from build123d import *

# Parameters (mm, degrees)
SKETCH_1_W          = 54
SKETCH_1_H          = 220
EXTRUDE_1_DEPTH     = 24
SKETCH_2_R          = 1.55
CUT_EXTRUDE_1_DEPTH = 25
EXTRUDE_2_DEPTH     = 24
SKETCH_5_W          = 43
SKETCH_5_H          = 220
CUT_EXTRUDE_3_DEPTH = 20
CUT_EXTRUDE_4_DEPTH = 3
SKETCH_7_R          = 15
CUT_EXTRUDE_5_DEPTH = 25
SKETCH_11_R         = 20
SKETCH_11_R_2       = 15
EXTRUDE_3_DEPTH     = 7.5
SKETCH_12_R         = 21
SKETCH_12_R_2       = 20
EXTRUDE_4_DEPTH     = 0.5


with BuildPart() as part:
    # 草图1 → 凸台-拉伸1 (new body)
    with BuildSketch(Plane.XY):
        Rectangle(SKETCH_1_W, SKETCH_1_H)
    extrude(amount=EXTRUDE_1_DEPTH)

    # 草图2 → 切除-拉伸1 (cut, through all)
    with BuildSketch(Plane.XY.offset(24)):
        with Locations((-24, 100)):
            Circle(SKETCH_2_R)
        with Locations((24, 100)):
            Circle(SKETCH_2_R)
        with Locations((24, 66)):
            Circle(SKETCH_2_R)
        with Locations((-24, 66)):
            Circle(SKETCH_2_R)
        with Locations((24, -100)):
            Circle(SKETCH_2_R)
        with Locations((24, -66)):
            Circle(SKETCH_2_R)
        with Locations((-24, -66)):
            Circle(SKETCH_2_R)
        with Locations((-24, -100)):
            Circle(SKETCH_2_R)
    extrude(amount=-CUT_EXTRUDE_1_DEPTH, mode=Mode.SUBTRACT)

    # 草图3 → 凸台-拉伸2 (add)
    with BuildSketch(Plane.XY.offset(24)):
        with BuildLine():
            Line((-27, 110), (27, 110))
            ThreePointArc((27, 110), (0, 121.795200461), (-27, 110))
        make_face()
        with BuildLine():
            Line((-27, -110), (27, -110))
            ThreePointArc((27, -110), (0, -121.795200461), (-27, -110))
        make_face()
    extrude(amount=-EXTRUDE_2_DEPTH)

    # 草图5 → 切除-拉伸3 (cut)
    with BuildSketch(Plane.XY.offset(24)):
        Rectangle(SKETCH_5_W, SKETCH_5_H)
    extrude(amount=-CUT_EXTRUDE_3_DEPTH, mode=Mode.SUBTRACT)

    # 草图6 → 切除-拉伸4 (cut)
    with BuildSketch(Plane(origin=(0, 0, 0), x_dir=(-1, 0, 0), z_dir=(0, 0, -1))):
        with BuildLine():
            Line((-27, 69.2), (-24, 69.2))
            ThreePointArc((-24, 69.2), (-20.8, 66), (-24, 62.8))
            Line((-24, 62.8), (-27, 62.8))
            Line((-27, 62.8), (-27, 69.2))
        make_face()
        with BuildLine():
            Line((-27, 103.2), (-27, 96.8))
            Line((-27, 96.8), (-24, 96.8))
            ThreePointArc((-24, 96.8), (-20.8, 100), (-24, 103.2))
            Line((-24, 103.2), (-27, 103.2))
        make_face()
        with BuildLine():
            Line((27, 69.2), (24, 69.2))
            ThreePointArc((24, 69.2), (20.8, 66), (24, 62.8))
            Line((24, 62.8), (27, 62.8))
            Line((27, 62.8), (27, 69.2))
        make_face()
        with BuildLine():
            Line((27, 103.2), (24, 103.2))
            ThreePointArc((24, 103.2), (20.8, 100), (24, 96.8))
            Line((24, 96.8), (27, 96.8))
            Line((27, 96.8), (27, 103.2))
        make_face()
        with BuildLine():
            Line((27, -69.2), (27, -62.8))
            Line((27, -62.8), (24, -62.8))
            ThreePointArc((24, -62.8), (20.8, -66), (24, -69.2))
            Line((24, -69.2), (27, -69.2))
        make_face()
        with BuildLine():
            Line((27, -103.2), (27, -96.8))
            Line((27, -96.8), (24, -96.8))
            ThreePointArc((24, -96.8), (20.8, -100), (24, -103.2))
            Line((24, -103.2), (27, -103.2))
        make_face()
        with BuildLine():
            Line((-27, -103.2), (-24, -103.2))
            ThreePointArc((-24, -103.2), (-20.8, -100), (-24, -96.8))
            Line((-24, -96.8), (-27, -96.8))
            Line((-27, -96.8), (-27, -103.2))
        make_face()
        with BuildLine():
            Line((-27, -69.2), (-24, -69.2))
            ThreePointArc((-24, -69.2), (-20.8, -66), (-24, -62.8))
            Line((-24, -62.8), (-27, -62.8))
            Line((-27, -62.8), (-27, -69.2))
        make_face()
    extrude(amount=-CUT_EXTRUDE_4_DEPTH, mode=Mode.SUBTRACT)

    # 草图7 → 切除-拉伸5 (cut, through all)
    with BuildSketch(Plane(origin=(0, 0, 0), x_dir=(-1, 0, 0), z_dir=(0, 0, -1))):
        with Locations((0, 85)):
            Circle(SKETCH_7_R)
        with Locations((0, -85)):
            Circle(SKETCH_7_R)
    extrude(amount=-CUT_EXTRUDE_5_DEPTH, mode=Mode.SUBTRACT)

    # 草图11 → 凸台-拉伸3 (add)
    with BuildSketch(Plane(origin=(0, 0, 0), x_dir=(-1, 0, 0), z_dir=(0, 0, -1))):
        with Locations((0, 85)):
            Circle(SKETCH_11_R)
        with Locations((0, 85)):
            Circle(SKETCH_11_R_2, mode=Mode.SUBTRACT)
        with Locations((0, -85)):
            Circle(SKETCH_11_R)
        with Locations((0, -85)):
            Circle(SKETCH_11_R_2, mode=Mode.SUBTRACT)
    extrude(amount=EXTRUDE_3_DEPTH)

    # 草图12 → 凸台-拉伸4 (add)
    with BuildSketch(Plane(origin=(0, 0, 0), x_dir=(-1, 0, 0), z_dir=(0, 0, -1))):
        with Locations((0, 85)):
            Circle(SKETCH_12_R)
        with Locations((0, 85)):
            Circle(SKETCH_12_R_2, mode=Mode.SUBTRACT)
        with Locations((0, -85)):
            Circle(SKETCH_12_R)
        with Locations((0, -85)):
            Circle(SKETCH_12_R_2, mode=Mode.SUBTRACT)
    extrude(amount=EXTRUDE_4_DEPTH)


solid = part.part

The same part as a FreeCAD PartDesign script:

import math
import FreeCAD as App
import Part
import Sketcher
from FreeCAD import Vector


def add_polygon(sketch, points):
    """Adds a closed chain of lines whose ends are joined by coincident constraints."""
    first, n = sketch.GeometryCount, len(points)
    for a, b in zip(points, points[1:] + points[:1]):
        sketch.addGeometry(Part.LineSegment(App.Vector(*a, 0), App.Vector(*b, 0)), False)
    for i in range(n):
        sketch.addConstraint(Sketcher.Constraint("Coincident", first + i, 2, first + (i + 1) % n, 1))

doc = App.newDocument("Part")
body = doc.addObject("PartDesign::Body", "Body")

# Sketch on XY plane
sketch1 = body.newObject("Sketcher::SketchObject", "Sketch")
sketch1.AttachmentSupport = (doc.getObject("XY_Plane"), [""])
sketch1.MapMode = "FlatFace"
add_polygon(sketch1, [(-27, 110), (-27, -110), (27, -110), (27, 110)])  # lines 0-3
sketch1.addConstraint([
    Sketcher.Constraint("Vertical", 0),
    Sketcher.Constraint("Horizontal", 1),
    Sketcher.Constraint("Vertical", 2),
    Sketcher.Constraint("Horizontal", 3),
    Sketcher.Constraint("Symmetric", 0, 2, 2, 2, -1, 1),
    Sketcher.Constraint("DistanceX", 1, 1, 1, 2, 54.0),
    Sketcher.Constraint("DistanceY", 0, 2, 0, 1, 220.0),
])
pad1 = body.newObject("PartDesign::Pad", "Pad")
pad1.Profile = sketch1
pad1.Length = 24

# Sketch on XY plane
sketch2 = body.newObject("Sketcher::SketchObject", "Sketch001")
sketch2.AttachmentSupport = (doc.getObject("XY_Plane"), [""])
sketch2.MapMode = "FlatFace"
sketch2.AttachmentOffset = App.Placement(Vector(0, 0, 24), App.Rotation())
sketch2.addGeometry([
    Part.Circle(Vector(-24, 100, 0), Vector(0, 0, 1), 1.6),  # 0
    Part.Circle(Vector(24, 100, 0), Vector(0, 0, 1), 1.6),  # 1
    Part.Circle(Vector(24, 66, 0), Vector(0, 0, 1), 1.6),  # 2
    Part.Circle(Vector(-24, 66, 0), Vector(0, 0, 1), 1.6),  # 3
    Part.Circle(Vector(24, -100, 0), Vector(0, 0, 1), 1.6),  # 4
    Part.Circle(Vector(24, -66, 0), Vector(0, 0, 1), 1.6),  # 5
    Part.Circle(Vector(-24, -66, 0), Vector(0, 0, 1), 1.6),  # 6
    Part.Circle(Vector(-24, -100, 0), Vector(0, 0, 1), 1.6),  # 7
], False)
sketch2.addConstraint([
    Sketcher.Constraint("Equal", 0, 1),
    Sketcher.Constraint("Equal", 1, 2),
    Sketcher.Constraint("Equal", 2, 3),
    Sketcher.Constraint("Equal", 3, 4),
    Sketcher.Constraint("Equal", 4, 5),
    Sketcher.Constraint("Equal", 5, 6),
    Sketcher.Constraint("Equal", 6, 7),
    Sketcher.Constraint("Symmetric", 0, 3, 4, 3, -1, 1),
    Sketcher.Constraint("Symmetric", 3, 3, 5, 3, -1, 1),
    Sketcher.Constraint("Symmetric", 2, 3, 6, 3, -1, 1),
    Sketcher.Constraint("Symmetric", 1, 3, 7, 3, -1, 1),
    Sketcher.Constraint("Symmetric", 0, 3, 1, 3, -2),
    Sketcher.Constraint("Symmetric", 2, 3, 3, 3, -2),
    Sketcher.Constraint("Vertical", 1, 3, 2, 3),
    Sketcher.Constraint("Diameter", 0, 3.1),
    Sketcher.Constraint("DistanceX", 0, 3, -1, 1, 24.0),
    Sketcher.Constraint("DistanceY", -1, 1, 0, 3, 100.0),
    Sketcher.Constraint("DistanceY", -1, 1, 2, 3, 66.0),
])
pocket1 = body.newObject("PartDesign::Pocket", "Pocket")
pocket1.Profile = sketch2
pocket1.Type = "ThroughAll"

# Sketch on XY plane
sketch3 = body.newObject("Sketcher::SketchObject", "Sketch002")
sketch3.AttachmentSupport = (doc.getObject("XY_Plane"), [""])
sketch3.MapMode = "FlatFace"
sketch3.AttachmentOffset = App.Placement(Vector(0, 0, 24), App.Rotation())
sketch3.addGeometry([
    Part.LineSegment(Vector(-27, 110, 0), Vector(27, 110, 0)),
    Part.ArcOfCircle(Part.Circle(Vector(0, 85, 0), Vector(0, 0, 1), 37), math.radians(43), math.radians(137)),
    Part.LineSegment(Vector(27, -110, 0), Vector(-27, -110, 0)),
    Part.ArcOfCircle(Part.Circle(Vector(0, -85, 0), Vector(0, 0, 1), 37), math.radians(-137), math.radians(-43)),
], False)
sketch3.addConstraint([
    Sketcher.Constraint("Coincident", 0, 1, 1, 2),
    Sketcher.Constraint("Coincident", 1, 1, 0, 2),
    Sketcher.Constraint("Coincident", 2, 1, 3, 2),
    Sketcher.Constraint("Coincident", 3, 1, 2, 2),
    Sketcher.Constraint("Horizontal", 0),
    Sketcher.Constraint("Horizontal", 2),
    Sketcher.Constraint("Equal", 1, 3),
    Sketcher.Constraint("Symmetric", 1, 3, 3, 3, -1, 1),
    Sketcher.Constraint("Symmetric", 1, 1, 2, 1, -1),
    Sketcher.Constraint("Radius", 1, 36.8),
    Sketcher.Constraint("DistanceX", 0, 1, 0, 2, 54.0),
    Sketcher.Constraint("DistanceY", -1, 1, 0, 1, 110.0),
])
pad2 = body.newObject("PartDesign::Pad", "Pad001")
pad2.Profile = sketch3
pad2.Length = 24
pad2.Reversed = True

# Sketch on XY plane
sketch4 = body.newObject("Sketcher::SketchObject", "Sketch003")
sketch4.AttachmentSupport = (doc.getObject("XY_Plane"), [""])
sketch4.MapMode = "FlatFace"
sketch4.AttachmentOffset = App.Placement(Vector(0, 0, 24), App.Rotation())
add_polygon(sketch4, [(-22, 110), (-22, -110), (22, -110), (22, 110)])  # lines 0-3
sketch4.addConstraint([
    Sketcher.Constraint("Vertical", 0),
    Sketcher.Constraint("Horizontal", 1),
    Sketcher.Constraint("Vertical", 2),
    Sketcher.Constraint("Horizontal", 3),
    Sketcher.Constraint("Symmetric", 0, 2, 2, 2, -1, 1),
    Sketcher.Constraint("DistanceX", 1, 1, 1, 2, 43.0),
    Sketcher.Constraint("DistanceY", 0, 2, 0, 1, 220.0),
])
pocket2 = body.newObject("PartDesign::Pocket", "Pocket001")
pocket2.Profile = sketch4
pocket2.Length = 20

# Sketch on XY plane
sketch5 = body.newObject("Sketcher::SketchObject", "Sketch004")
sketch5.AttachmentSupport = (doc.getObject("XY_Plane"), [""])
sketch5.MapMode = "FlatFace"
sketch5.addGeometry([
    Part.LineSegment(Vector(24, 69.2, 0), Vector(27, 69.2, 0)),  # 0
    Part.LineSegment(Vector(27, 69.2, 0), Vector(27, 62.8, 0)),  # 1
    Part.LineSegment(Vector(27, 62.8, 0), Vector(24, 62.8, 0)),  # 2
    Part.ArcOfCircle(Part.Circle(Vector(24, 66, 0), Vector(0, 0, 1), 3.2), math.radians(90), math.radians(270)),  # 3
    Part.LineSegment(Vector(27, 103.2, 0), Vector(27, 96.8, 0)),  # 4
    Part.LineSegment(Vector(27, 96.8, 0), Vector(24, 96.8, 0)),  # 5
    Part.ArcOfCircle(Part.Circle(Vector(24, 100, 0), Vector(0, 0, 1), 3.2), math.radians(90), math.radians(270)),  # 6
    Part.LineSegment(Vector(24, 103.2, 0), Vector(27, 103.2, 0)),  # 7
    Part.LineSegment(Vector(-27, 69.2, 0), Vector(-24, 69.2, 0)),  # 8
    Part.ArcOfCircle(Part.Circle(Vector(-24, 66, 0), Vector(0, 0, 1), 3.2), math.radians(-90), math.radians(90)),  # 9
    Part.LineSegment(Vector(-24, 62.8, 0), Vector(-27, 62.8, 0)),  # 10
    Part.LineSegment(Vector(-27, 62.8, 0), Vector(-27, 69.2, 0)),  # 11
    Part.LineSegment(Vector(-27, 103.2, 0), Vector(-24, 103.2, 0)),  # 12
    Part.ArcOfCircle(Part.Circle(Vector(-24, 100, 0), Vector(0, 0, 1), 3.2), math.radians(-90), math.radians(90)),  # 13
    Part.LineSegment(Vector(-24, 96.8, 0), Vector(-27, 96.8, 0)),  # 14
    Part.LineSegment(Vector(-27, 96.8, 0), Vector(-27, 103.2, 0)),  # 15
    Part.LineSegment(Vector(-27, -69.2, 0), Vector(-27, -62.8, 0)),  # 16
    Part.LineSegment(Vector(-27, -62.8, 0), Vector(-24, -62.8, 0)),  # 17
    Part.ArcOfCircle(Part.Circle(Vector(-24, -66, 0), Vector(0, 0, 1), 3.2), math.radians(-90), math.radians(90)),  # 18
    Part.LineSegment(Vector(-24, -69.2, 0), Vector(-27, -69.2, 0)),  # 19
    Part.LineSegment(Vector(-27, -103.2, 0), Vector(-27, -96.8, 0)),  # 20
    Part.LineSegment(Vector(-27, -96.8, 0), Vector(-24, -96.8, 0)),  # 21
    Part.ArcOfCircle(Part.Circle(Vector(-24, -100, 0), Vector(0, 0, 1), 3.2), math.radians(-90), math.radians(90)),  # 22
    Part.LineSegment(Vector(-24, -103.2, 0), Vector(-27, -103.2, 0)),  # 23
    Part.LineSegment(Vector(27, -103.2, 0), Vector(24, -103.2, 0)),  # 24
    Part.ArcOfCircle(Part.Circle(Vector(24, -100, 0), Vector(0, 0, 1), 3.2), math.radians(90), math.radians(270)),  # 25
    Part.LineSegment(Vector(24, -96.8, 0), Vector(27, -96.8, 0)),  # 26
    Part.LineSegment(Vector(27, -96.8, 0), Vector(27, -103.2, 0)),  # 27
    Part.LineSegment(Vector(27, -69.2, 0), Vector(24, -69.2, 0)),  # 28
    Part.ArcOfCircle(Part.Circle(Vector(24, -66, 0), Vector(0, 0, 1), 3.2), math.radians(90), math.radians(270)),  # 29
    Part.LineSegment(Vector(24, -62.8, 0), Vector(27, -62.8, 0)),  # 30
    Part.LineSegment(Vector(27, -62.8, 0), Vector(27, -69.2, 0)),  # 31
], False)
sketch5.addConstraint([
    Sketcher.Constraint("Coincident", 0, 2, 1, 1),
    Sketcher.Constraint("Coincident", 1, 2, 2, 1),
    Sketcher.Constraint("Tangent", 2, 2, 3, 2),
    Sketcher.Constraint("Tangent", 3, 1, 0, 1),
    Sketcher.Constraint("Coincident", 4, 2, 5, 1),
    Sketcher.Constraint("Tangent", 5, 2, 6, 2),
    Sketcher.Constraint("Tangent", 6, 1, 7, 1),
    Sketcher.Constraint("Coincident", 7, 2, 4, 1),
    Sketcher.Constraint("Tangent", 8, 2, 9, 2),
    Sketcher.Constraint("Tangent", 9, 1, 10, 1),
    Sketcher.Constraint("Coincident", 10, 2, 11, 1),
    Sketcher.Constraint("Coincident", 11, 2, 8, 1),
    Sketcher.Constraint("Tangent", 12, 2, 13, 2),
    Sketcher.Constraint("Tangent", 13, 1, 14, 1),
    Sketcher.Constraint("Coincident", 14, 2, 15, 1),
    Sketcher.Constraint("Coincident", 15, 2, 12, 1),
    Sketcher.Constraint("Coincident", 16, 2, 17, 1),
    Sketcher.Constraint("Tangent", 17, 2, 18, 2),
    Sketcher.Constraint("Tangent", 18, 1, 19, 1),
    Sketcher.Constraint("Coincident", 19, 2, 16, 1),
    Sketcher.Constraint("Coincident", 20, 2, 21, 1),
    Sketcher.Constraint("Tangent", 21, 2, 22, 2),
    Sketcher.Constraint("Tangent", 22, 1, 23, 1),
    Sketcher.Constraint("Coincident", 23, 2, 20, 1),
    Sketcher.Constraint("Tangent", 24, 2, 25, 2),
    Sketcher.Constraint("Tangent", 25, 1, 26, 1),
    Sketcher.Constraint("Coincident", 26, 2, 27, 1),
    Sketcher.Constraint("Coincident", 27, 2, 24, 1),
    Sketcher.Constraint("Tangent", 28, 2, 29, 2),
    Sketcher.Constraint("Tangent", 29, 1, 30, 1),
    Sketcher.Constraint("Coincident", 30, 2, 31, 1),
    Sketcher.Constraint("Coincident", 31, 2, 28, 1),
    Sketcher.Constraint("Horizontal", 0),
    Sketcher.Constraint("Vertical", 1),
    Sketcher.Constraint("Horizontal", 2),
    Sketcher.Constraint("Vertical", 4),
    Sketcher.Constraint("Horizontal", 5),
    Sketcher.Constraint("Horizontal", 7),
    Sketcher.Constraint("Horizontal", 8),
    Sketcher.Constraint("Horizontal", 10),
    Sketcher.Constraint("Vertical", 11),
    Sketcher.Constraint("Horizontal", 12),
    Sketcher.Constraint("Horizontal", 14),
    Sketcher.Constraint("Vertical", 15),
    Sketcher.Constraint("Vertical", 16),
    Sketcher.Constraint("Horizontal", 17),
    Sketcher.Constraint("Horizontal", 19),
    Sketcher.Constraint("Vertical", 20),
    Sketcher.Constraint("Horizontal", 21),
    Sketcher.Constraint("Horizontal", 23),
    Sketcher.Constraint("Horizontal", 24),
    Sketcher.Constraint("Horizontal", 26),
    Sketcher.Constraint("Vertical", 27),
    Sketcher.Constraint("Horizontal", 28),
    Sketcher.Constraint("Horizontal", 30),
    Sketcher.Constraint("Vertical", 31),
    Sketcher.Constraint("Equal", 3, 6),
    Sketcher.Constraint("Equal", 6, 9),
    Sketcher.Constraint("Equal", 9, 13),
    Sketcher.Constraint("Equal", 13, 18),
    Sketcher.Constraint("Equal", 18, 22),
    Sketcher.Constraint("Equal", 22, 25),
    Sketcher.Constraint("Equal", 25, 29),
    Sketcher.Constraint("Symmetric", 3, 3, 18, 3, -1, 1),
    Sketcher.Constraint("Symmetric", 6, 3, 22, 3, -1, 1),
    Sketcher.Constraint("Symmetric", 13, 3, 25, 3, -1, 1),
    Sketcher.Constraint("Symmetric", 9, 3, 29, 3, -1, 1),
    Sketcher.Constraint("Symmetric", 3, 3, 9, 3, -2),
    Sketcher.Constraint("Symmetric", 6, 3, 13, 3, -2),
    Sketcher.Constraint("Vertical", 3, 3, 6, 3),
    Sketcher.Constraint("Vertical", 1, 2, 4, 2),
    Sketcher.Constraint("Vertical", 11, 2, 14, 2),
    Sketcher.Constraint("Vertical", 15, 2, 16, 2),
    Sketcher.Constraint("Vertical", 19, 2, 20, 2),
    Sketcher.Constraint("Vertical", 7, 2, 26, 2),
    Sketcher.Constraint("Vertical", 27, 2, 30, 2),
    Sketcher.Constraint("Equal", 7, 8),
    Sketcher.Constraint("Radius", 3, 3.2),
    Sketcher.Constraint("DistanceX", 0, 1, 0, 2, 3.0),
    Sketcher.Constraint("DistanceX", -1, 1, 3, 3, 24.0),
    Sketcher.Constraint("DistanceY", -1, 1, 3, 3, 66.0),
    Sketcher.Constraint("DistanceY", -1, 1, 6, 3, 100.0),
])
pocket3 = body.newObject("PartDesign::Pocket", "Pocket002")
pocket3.Profile = sketch5
pocket3.Length = 3
pocket3.Reversed = True

# Sketch on XY plane
sketch6 = body.newObject("Sketcher::SketchObject", "Sketch005")
sketch6.AttachmentSupport = (doc.getObject("XY_Plane"), [""])
sketch6.MapMode = "FlatFace"
sketch6.addGeometry([
    Part.Circle(Vector(0, 85, 0), Vector(0, 0, 1), 15),
    Part.Circle(Vector(0, -85, 0), Vector(0, 0, 1), 15),
], False)
sketch6.addConstraint([
    Sketcher.Constraint("Equal", 0, 1),
    Sketcher.Constraint("Symmetric", 0, 3, 1, 3, -1, 1),
    Sketcher.Constraint("PointOnObject", 0, 3, -2),
    Sketcher.Constraint("Diameter", 0, 30.0),
    Sketcher.Constraint("DistanceY", -1, 1, 0, 3, 85.0),
])
pocket4 = body.newObject("PartDesign::Pocket", "Pocket003")
pocket4.Profile = sketch6
pocket4.Type = "ThroughAll"
pocket4.Reversed = True

# Sketch on XY plane
sketch7 = body.newObject("Sketcher::SketchObject", "Sketch006")
sketch7.AttachmentSupport = (doc.getObject("XY_Plane"), [""])
sketch7.MapMode = "FlatFace"
sketch7.addGeometry([
    Part.Circle(Vector(0, 85, 0), Vector(0, 0, 1), 20),
    Part.Circle(Vector(0, 85, 0), Vector(0, 0, 1), 15),
    Part.Circle(Vector(0, -85, 0), Vector(0, 0, 1), 20),
    Part.Circle(Vector(0, -85, 0), Vector(0, 0, 1), 15),
], False)
sketch7.addConstraint([
    Sketcher.Constraint("Coincident", 1, 3, 0, 3),
    Sketcher.Constraint("Coincident", 3, 3, 2, 3),
    Sketcher.Constraint("Equal", 0, 2),
    Sketcher.Constraint("Equal", 1, 3),
    Sketcher.Constraint("Symmetric", 0, 3, 2, 3, -1, 1),
    Sketcher.Constraint("PointOnObject", 0, 3, -2),
    Sketcher.Constraint("Diameter", 0, 40.0),
    Sketcher.Constraint("Diameter", 1, 30.0),
    Sketcher.Constraint("DistanceY", -1, 1, 0, 3, 85.0),
])
pad3 = body.newObject("PartDesign::Pad", "Pad002")
pad3.Profile = sketch7
pad3.Length = 7.5
pad3.Reversed = True

# Sketch on XY plane
sketch8 = body.newObject("Sketcher::SketchObject", "Sketch007")
sketch8.AttachmentSupport = (doc.getObject("XY_Plane"), [""])
sketch8.MapMode = "FlatFace"
sketch8.addGeometry([
    Part.Circle(Vector(0, 85, 0), Vector(0, 0, 1), 21),
    Part.Circle(Vector(0, 85, 0), Vector(0, 0, 1), 20),
    Part.Circle(Vector(0, -85, 0), Vector(0, 0, 1), 21),
    Part.Circle(Vector(0, -85, 0), Vector(0, 0, 1), 20),
], False)
sketch8.addConstraint([
    Sketcher.Constraint("Coincident", 1, 3, 0, 3),
    Sketcher.Constraint("Coincident", 3, 3, 2, 3),
    Sketcher.Constraint("Equal", 0, 2),
    Sketcher.Constraint("Equal", 1, 3),
    Sketcher.Constraint("Symmetric", 0, 3, 2, 3, -1, 1),
    Sketcher.Constraint("PointOnObject", 0, 3, -2),
    Sketcher.Constraint("Diameter", 0, 42.0),
    Sketcher.Constraint("Diameter", 1, 40.0),
    Sketcher.Constraint("DistanceY", -1, 1, 0, 3, 85.0),
])
pad4 = body.newObject("PartDesign::Pad", "Pad003")
pad4.Profile = sketch8
pad4.Length = 0.5
pad4.Reversed = True

doc.recompute()
